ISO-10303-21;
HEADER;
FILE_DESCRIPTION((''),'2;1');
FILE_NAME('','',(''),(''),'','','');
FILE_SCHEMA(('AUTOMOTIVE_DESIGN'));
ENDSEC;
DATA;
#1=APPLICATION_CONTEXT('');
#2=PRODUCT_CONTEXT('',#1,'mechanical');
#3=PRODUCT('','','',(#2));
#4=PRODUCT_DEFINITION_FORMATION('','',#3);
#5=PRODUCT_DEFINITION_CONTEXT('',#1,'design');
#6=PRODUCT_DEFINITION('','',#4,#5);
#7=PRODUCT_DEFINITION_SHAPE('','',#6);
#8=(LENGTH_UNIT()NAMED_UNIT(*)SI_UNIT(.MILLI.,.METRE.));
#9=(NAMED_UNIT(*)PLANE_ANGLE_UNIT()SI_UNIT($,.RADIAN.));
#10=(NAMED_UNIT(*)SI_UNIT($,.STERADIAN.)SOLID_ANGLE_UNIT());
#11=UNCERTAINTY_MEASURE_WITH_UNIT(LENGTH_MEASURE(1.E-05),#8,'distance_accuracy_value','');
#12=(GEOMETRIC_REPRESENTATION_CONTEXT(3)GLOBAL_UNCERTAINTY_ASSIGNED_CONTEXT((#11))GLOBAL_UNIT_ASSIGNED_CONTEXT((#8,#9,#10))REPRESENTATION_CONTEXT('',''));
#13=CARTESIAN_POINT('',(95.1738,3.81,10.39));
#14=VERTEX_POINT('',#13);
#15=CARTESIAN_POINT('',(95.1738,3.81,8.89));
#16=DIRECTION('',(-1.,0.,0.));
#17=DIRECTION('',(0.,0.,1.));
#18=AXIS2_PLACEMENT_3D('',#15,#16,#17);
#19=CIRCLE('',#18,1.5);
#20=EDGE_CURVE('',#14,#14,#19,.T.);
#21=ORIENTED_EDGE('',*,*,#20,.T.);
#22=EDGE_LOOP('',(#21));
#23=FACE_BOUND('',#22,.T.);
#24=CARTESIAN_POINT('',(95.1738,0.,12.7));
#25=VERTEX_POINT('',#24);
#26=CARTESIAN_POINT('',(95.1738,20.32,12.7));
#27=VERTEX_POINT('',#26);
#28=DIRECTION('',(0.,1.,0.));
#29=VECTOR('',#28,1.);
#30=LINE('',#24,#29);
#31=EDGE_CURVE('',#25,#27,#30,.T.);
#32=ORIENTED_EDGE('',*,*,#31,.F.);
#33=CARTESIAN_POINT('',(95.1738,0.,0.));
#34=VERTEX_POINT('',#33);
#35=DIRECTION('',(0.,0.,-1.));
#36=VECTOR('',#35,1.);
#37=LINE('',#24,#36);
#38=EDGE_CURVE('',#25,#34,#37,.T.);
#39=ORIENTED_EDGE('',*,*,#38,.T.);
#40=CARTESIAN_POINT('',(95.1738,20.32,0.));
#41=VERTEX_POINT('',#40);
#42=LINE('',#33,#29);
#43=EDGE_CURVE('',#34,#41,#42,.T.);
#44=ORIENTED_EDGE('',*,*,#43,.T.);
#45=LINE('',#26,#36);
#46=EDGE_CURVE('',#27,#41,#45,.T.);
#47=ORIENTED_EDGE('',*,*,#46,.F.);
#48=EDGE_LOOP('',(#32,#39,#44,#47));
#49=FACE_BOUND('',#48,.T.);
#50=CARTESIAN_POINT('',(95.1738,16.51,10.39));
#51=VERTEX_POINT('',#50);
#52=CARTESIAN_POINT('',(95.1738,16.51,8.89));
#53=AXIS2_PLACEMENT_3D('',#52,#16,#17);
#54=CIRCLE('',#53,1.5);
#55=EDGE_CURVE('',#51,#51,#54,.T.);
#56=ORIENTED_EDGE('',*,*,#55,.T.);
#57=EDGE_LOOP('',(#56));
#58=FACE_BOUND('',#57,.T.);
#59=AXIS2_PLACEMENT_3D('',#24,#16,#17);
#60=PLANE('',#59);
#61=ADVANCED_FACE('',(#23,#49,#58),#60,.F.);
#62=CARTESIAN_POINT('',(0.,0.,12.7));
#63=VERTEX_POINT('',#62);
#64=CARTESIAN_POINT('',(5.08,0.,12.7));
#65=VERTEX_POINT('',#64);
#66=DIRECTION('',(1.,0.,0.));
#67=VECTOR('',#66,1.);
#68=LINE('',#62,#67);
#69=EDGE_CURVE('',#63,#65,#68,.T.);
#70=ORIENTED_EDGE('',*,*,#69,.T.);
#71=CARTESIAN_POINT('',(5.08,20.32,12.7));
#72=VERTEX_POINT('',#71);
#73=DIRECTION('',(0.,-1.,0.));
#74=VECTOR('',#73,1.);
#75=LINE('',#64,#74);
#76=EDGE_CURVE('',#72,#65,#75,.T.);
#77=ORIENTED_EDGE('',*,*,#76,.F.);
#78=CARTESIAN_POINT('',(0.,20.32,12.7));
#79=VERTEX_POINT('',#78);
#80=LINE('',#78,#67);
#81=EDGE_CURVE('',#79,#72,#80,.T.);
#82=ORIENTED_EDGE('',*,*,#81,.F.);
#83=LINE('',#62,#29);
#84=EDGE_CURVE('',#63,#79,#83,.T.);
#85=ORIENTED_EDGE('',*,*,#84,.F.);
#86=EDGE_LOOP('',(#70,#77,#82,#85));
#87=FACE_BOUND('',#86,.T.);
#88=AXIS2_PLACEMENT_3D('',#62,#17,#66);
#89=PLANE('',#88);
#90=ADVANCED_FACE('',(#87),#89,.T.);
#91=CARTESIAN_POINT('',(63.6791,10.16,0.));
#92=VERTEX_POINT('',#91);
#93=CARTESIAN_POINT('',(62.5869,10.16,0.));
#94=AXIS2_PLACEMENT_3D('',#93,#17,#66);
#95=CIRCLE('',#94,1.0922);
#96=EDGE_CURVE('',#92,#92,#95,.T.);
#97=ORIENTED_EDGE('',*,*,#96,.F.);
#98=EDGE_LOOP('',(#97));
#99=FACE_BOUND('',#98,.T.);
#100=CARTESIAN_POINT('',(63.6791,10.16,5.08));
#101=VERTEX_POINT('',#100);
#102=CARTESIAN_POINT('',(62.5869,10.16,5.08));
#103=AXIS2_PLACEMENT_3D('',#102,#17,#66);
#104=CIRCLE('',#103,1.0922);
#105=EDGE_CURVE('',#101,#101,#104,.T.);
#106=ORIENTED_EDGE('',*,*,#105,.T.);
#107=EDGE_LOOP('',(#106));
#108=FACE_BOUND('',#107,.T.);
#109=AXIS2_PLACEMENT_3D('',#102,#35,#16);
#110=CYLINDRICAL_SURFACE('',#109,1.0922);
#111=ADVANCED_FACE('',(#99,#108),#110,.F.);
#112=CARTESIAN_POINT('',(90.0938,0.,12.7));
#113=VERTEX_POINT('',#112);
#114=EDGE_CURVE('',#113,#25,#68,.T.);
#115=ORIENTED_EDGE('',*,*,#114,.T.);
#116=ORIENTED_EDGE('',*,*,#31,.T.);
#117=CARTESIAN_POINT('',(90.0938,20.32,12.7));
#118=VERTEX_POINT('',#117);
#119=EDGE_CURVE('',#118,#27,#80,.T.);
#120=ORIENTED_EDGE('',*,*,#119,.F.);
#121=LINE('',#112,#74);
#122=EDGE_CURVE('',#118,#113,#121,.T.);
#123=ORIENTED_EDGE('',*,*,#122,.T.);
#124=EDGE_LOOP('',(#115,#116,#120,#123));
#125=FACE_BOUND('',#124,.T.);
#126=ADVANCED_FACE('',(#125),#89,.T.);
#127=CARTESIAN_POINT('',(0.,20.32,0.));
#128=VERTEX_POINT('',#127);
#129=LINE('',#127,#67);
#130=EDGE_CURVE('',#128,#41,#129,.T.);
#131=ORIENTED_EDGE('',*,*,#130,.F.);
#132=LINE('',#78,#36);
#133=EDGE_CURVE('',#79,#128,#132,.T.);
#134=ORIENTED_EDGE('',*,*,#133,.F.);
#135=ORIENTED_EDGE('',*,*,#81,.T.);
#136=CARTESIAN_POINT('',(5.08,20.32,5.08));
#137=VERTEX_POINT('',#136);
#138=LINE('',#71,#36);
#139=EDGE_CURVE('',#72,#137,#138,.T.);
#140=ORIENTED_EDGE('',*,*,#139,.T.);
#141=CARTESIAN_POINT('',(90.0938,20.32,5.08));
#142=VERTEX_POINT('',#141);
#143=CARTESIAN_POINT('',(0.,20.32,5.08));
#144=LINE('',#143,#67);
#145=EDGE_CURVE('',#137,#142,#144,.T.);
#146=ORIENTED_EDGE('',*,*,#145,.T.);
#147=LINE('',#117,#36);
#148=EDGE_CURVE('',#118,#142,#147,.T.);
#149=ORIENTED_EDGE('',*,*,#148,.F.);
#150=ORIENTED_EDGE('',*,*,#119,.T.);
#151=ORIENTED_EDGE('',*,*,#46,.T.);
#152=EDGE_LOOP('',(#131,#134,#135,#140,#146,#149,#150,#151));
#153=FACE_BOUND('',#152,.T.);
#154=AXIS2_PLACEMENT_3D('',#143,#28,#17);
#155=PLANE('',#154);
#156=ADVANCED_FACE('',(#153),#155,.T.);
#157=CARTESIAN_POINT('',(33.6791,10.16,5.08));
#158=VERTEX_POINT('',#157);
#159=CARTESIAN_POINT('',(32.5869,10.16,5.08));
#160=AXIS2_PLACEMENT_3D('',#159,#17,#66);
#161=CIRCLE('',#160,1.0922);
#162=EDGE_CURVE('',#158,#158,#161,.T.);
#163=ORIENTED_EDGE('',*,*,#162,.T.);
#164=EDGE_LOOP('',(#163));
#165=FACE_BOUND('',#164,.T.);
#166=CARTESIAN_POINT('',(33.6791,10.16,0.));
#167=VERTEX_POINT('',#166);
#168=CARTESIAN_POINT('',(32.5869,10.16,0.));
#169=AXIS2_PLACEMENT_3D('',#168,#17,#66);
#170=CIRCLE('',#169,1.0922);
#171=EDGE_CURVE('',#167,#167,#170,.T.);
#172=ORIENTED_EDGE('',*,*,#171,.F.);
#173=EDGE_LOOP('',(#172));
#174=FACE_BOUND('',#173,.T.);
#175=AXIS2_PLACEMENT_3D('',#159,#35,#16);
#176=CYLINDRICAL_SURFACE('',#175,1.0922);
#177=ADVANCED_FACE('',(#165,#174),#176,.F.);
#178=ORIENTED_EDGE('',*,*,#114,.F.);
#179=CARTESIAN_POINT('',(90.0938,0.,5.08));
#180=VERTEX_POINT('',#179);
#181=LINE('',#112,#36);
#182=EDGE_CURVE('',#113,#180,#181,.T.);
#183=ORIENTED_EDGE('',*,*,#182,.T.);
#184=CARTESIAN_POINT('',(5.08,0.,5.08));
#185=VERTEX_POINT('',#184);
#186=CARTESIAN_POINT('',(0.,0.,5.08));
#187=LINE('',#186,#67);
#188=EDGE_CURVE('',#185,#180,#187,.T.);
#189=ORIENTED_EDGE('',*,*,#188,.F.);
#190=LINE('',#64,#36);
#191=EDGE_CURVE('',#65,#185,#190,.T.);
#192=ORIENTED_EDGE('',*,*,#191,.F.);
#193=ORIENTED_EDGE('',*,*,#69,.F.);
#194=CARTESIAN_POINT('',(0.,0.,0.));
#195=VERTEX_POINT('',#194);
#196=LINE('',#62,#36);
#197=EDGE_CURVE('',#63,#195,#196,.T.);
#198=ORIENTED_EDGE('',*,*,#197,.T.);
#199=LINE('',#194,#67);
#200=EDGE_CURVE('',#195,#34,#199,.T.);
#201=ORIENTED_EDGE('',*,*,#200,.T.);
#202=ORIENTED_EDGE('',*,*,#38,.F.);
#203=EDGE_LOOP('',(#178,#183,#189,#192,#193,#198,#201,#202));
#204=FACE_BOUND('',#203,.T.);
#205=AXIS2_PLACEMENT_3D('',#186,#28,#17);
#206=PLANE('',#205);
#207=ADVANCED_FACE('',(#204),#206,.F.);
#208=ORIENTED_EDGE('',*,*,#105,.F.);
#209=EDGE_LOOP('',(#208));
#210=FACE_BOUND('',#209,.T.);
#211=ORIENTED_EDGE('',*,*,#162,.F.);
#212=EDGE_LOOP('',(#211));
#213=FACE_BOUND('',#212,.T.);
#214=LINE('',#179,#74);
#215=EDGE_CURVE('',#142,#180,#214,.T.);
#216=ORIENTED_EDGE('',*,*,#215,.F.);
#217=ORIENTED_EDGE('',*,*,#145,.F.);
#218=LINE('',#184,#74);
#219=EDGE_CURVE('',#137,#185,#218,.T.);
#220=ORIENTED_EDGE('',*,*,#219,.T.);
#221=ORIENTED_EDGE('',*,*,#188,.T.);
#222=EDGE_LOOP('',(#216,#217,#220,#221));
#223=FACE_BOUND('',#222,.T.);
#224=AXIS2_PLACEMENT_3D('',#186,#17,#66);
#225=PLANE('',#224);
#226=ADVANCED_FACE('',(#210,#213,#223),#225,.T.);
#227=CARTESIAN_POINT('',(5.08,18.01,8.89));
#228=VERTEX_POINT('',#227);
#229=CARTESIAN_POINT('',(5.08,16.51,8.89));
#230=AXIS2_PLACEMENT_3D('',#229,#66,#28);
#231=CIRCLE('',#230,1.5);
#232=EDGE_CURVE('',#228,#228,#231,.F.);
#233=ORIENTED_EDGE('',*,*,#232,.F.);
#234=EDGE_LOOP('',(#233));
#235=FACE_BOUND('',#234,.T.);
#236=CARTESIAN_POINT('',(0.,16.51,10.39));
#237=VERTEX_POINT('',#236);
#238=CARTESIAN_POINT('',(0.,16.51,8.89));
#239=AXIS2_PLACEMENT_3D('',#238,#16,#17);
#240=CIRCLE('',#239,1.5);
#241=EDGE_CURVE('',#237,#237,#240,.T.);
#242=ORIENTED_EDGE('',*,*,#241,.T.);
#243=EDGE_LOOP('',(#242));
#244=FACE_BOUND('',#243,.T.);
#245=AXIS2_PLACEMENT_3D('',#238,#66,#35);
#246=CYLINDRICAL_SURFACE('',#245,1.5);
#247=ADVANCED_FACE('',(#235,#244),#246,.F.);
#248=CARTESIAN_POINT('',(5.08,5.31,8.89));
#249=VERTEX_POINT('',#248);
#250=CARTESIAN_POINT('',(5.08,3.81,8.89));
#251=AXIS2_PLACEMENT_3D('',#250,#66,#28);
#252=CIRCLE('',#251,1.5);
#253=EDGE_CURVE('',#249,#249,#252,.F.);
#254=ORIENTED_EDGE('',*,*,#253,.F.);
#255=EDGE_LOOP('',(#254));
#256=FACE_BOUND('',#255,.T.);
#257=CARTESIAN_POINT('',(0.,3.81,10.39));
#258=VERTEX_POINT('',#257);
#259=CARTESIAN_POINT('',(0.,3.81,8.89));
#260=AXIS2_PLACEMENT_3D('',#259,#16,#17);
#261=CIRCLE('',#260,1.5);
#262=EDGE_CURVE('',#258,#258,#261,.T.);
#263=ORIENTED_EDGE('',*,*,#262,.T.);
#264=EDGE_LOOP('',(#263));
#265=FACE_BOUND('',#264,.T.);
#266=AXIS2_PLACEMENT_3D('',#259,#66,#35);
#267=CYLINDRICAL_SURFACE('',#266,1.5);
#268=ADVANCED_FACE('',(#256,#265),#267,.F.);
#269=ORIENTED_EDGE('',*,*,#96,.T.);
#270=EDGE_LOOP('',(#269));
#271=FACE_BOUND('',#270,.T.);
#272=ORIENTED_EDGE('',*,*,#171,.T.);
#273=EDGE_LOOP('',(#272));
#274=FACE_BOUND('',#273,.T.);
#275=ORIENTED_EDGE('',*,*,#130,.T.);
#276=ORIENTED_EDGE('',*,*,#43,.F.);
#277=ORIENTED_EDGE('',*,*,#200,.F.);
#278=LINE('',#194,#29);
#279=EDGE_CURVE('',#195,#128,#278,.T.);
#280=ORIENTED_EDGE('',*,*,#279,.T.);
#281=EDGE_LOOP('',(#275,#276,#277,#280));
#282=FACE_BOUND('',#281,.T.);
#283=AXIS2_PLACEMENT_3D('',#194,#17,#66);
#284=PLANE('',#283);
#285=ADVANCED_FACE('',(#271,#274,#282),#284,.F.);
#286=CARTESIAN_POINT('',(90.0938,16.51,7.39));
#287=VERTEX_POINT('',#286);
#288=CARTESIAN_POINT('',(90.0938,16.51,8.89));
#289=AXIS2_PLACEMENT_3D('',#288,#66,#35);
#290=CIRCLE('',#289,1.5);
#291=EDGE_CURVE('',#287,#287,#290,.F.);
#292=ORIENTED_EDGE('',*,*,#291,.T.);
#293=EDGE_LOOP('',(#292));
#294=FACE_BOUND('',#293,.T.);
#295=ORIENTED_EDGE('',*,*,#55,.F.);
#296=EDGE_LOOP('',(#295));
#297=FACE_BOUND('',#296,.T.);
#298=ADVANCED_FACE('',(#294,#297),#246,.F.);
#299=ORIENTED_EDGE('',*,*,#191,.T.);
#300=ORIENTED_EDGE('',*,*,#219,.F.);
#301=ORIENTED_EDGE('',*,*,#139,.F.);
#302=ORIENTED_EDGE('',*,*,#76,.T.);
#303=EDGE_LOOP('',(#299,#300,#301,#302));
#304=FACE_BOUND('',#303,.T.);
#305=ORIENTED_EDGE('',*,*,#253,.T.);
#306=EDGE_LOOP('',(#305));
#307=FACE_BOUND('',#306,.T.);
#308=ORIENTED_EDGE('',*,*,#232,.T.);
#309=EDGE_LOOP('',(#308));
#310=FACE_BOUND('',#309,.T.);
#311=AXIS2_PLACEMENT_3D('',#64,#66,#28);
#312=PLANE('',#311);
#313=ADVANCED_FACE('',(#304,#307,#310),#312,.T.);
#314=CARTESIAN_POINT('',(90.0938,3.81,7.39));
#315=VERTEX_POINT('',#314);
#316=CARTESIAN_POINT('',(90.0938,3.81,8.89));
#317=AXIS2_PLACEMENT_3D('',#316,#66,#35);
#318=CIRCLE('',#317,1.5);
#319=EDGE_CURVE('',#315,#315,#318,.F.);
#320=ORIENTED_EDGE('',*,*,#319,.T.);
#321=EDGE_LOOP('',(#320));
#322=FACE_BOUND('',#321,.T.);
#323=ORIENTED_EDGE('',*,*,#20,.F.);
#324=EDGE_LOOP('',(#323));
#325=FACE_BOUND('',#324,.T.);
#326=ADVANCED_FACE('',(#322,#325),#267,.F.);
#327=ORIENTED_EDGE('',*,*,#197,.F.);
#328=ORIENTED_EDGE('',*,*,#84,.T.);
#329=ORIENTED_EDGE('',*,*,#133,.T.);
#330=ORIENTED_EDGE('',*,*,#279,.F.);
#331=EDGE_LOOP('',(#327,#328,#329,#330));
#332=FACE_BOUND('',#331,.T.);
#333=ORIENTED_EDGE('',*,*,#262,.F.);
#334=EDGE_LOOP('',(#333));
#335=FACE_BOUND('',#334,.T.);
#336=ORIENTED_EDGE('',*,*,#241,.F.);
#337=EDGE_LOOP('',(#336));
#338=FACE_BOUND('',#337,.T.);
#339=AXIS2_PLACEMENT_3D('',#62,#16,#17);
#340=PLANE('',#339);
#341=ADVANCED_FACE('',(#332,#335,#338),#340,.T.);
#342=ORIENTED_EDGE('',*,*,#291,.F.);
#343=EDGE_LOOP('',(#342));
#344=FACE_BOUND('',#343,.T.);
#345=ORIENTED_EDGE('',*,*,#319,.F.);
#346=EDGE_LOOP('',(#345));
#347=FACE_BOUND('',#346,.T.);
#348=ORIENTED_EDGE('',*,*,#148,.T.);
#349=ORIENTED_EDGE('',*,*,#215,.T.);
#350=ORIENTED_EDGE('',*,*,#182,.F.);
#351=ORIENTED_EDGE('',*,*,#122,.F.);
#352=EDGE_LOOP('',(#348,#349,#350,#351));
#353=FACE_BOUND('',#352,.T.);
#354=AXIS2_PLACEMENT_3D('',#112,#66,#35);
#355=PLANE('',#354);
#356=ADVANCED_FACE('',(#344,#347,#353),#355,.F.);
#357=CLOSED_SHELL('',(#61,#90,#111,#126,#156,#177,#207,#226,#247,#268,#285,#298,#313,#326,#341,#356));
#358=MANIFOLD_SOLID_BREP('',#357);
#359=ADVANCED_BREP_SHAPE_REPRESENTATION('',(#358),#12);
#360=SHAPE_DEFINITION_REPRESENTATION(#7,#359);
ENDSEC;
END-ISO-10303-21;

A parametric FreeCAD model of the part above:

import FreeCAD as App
import Part
import Sketcher

V = App.Vector
Q = App.Units.Quantity

doc = App.newDocument("Part")
params = doc.addObject("Spreadsheet::Sheet", "Params")
for row, (alias, value) in enumerate([
    ("sketch1_diameter", "0.086 in"),
    ("sketch1_height", "0.8 in"),
    ("sketch1_width", "3.347 in"),
    ("pad1_length", "0.2 in"),
    ("sketch2_width", "0.2 in"),
    ("sketch2_height", "0.8 in"),
    ("pad2_length", "0.5 in"),
], start=1):
    params.set(f"A{row}", alias)
    params.set(f"B{row}", "=" + value)
    params.setAlias(f"B{row}", alias)

body = doc.addObject("PartDesign::Body", "Body")

# Sketch on XY plane
sketch1 = doc.addObject("Sketcher::SketchObject", "Sketch")
body.addObject(sketch1)
sketch1.AttachmentSupport = (doc.XY_Plane, [""])
sketch1.MapMode = "FlatFace"
sketch1.addGeometry(Part.LineSegment(V(90.1, 20.3, 0), V(5.1, 20.3, 0)), False)
sketch1.addGeometry(Part.LineSegment(V(5.1, 20.3, 0), V(5.1, 0, 0)), False)
sketch1.addGeometry(Part.LineSegment(V(5.1, 0, 0), V(90.1, 0, 0)), False)
sketch1.addGeometry(Part.LineSegment(V(90.1, 0, 0), V(90.1, 20.3, 0)), False)
sketch1.addGeometry(Part.Circle(V(32.6, 10.2, 0), V(0, 0, 1), 1.1), False)
sketch1.addGeometry(Part.Circle(V(62.6, 10.2, 0), V(0, 0, 1), 1.1), False)
sketch1.addConstraint(Sketcher.Constraint("Coincident", 0, 2, 1, 1))
sketch1.addConstraint(Sketcher.Constraint("Coincident", 1, 2, 2, 1))
sketch1.addConstraint(Sketcher.Constraint("Coincident", 2, 2, 3, 1))
sketch1.addConstraint(Sketcher.Constraint("Coincident", 3, 2, 0, 1))
sketch1.addConstraint(Sketcher.Constraint("Horizontal", 0))
sketch1.addConstraint(Sketcher.Constraint("Vertical", 1))
sketch1.addConstraint(Sketcher.Constraint("Horizontal", 2))
sketch1.addConstraint(Sketcher.Constraint("Vertical", 3))
sketch1.addConstraint(Sketcher.Constraint("Equal", 4, 5))
sketch1.addConstraint(Sketcher.Constraint("PointOnObject", 1, 2, -1))
sketch1.addConstraint(Sketcher.Constraint("Horizontal", 4, 3, 5, 3))
sketch1.addConstraint(Sketcher.Constraint("Diameter", 4, Q("0.086 in")))
sketch1.addConstraint(Sketcher.Constraint("DistanceY", 1, 2, 1, 1, Q("0.8 in")))
sketch1.addConstraint(Sketcher.Constraint("DistanceY", -1, 1, 4, 3, Q("0.4 in")))
sketch1.addConstraint(Sketcher.Constraint("DistanceX", -1, 1, 0, 2, Q("0.2 in")))
sketch1.addConstraint(Sketcher.Constraint("DistanceX", 0, 2, 0, 1, Q("3.347 in")))
sketch1.addConstraint(Sketcher.Constraint("DistanceX", -1, 1, 4, 3, 32.5869))
sketch1.addConstraint(Sketcher.Constraint("DistanceX", -1, 1, 5, 3, 62.5869))
sketch1.setExpression("Constraints[11]", "Params.sketch1_diameter")
sketch1.setExpression("Constraints[12]", "Params.sketch1_height")
sketch1.setExpression("Constraints[15]", "Params.sketch1_width")
pad1 = doc.addObject("PartDesign::Pad", "Pad")
body.addObject(pad1)
pad1.Profile = sketch1
pad1.setExpression("Length", "Params.pad1_length")

# Sketch on XY plane
sketch2 = doc.addObject("Sketcher::SketchObject", "Sketch001")
body.addObject(sketch2)
sketch2.AttachmentSupport = (doc.XY_Plane, [""])
sketch2.MapMode = "FlatFace"
sketch2.addGeometry(Part.LineSegment(V(90, 20, 0), V(90, 0, 0)), False)
sketch2.addGeometry(Part.LineSegment(V(90, 0, 0), V(95, 0, 0)), False)
sketch2.addGeometry(Part.LineSegment(V(95, 0, 0), V(95, 20, 0)), False)
sketch2.addGeometry(Part.LineSegment(V(95, 20, 0), V(90, 20, 0)), False)
sketch2.addGeometry(Part.LineSegment(V(0, 20, 0), V(0, 0, 0)), False)
sketch2.addGeometry(Part.LineSegment(V(0, 0, 0), V(5, 0, 0)), False)
sketch2.addGeometry(Part.LineSegment(V(5, 0, 0), V(5, 20, 0)), False)
sketch2.addGeometry(Part.LineSegment(V(5, 20, 0), V(0, 20, 0)), False)
sketch2.addConstraint(Sketcher.Constraint("Coincident", 0, 2, 1, 1))
sketch2.addConstraint(Sketcher.Constraint("Coincident", 1, 2, 2, 1))
sketch2.addConstraint(Sketcher.Constraint("Coincident", 2, 2, 3, 1))
sketch2.addConstraint(Sketcher.Constraint("Coincident", 3, 2, 0, 1))
sketch2.addConstraint(Sketcher.Constraint("Coincident", 4, 2, 5, 1))
sketch2.addConstraint(Sketcher.Constraint("Coincident", 5, 2, 6, 1))
sketch2.addConstraint(Sketcher.Constraint("Coincident", 6, 2, 7, 1))
sketch2.addConstraint(Sketcher.Constraint("Coincident", 7, 2, 4, 1))
sketch2.addConstraint(Sketcher.Constraint("Vertical", 0))
sketch2.addConstraint(Sketcher.Constraint("Horizontal", 1))
sketch2.addConstraint(Sketcher.Constraint("Vertical", 2))
sketch2.addConstraint(Sketcher.Constraint("Horizontal", 3))
sketch2.addConstraint(Sketcher.Constraint("Vertical", 4))
sketch2.addConstraint(Sketcher.Constraint("Horizontal", 5))
sketch2.addConstraint(Sketcher.Constraint("Vertical", 6))
sketch2.addConstraint(Sketcher.Constraint("Horizontal", 7))
sketch2.addConstraint(Sketcher.Constraint("Coincident", 4, 2, -1, 1))
sketch2.addConstraint(Sketcher.Constraint("PointOnObject", 0, 2, -1))
sketch2.addConstraint(Sketcher.Constraint("Horizontal", 3, 2, 6, 2))
sketch2.addConstraint(Sketcher.Constraint("Equal", 3, 5))
sketch2.addConstraint(Sketcher.Constraint("DistanceX", 1, 1, 1, 2, Q("0.2 in")))
sketch2.addConstraint(Sketcher.Constraint("DistanceY", 0, 2, 0, 1, Q("0.8 in")))
sketch2.addConstraint(Sketcher.Constraint("DistanceX", -1, 1, 0, 2, Q("3.547 in")))
sketch2.setExpression("Constraints[20]", "Params.sketch2_width")
sketch2.setExpression("Constraints[21]", "Params.sketch2_height")
pad2 = doc.addObject("PartDesign::Pad", "Pad001")
body.addObject(pad2)
pad2.Profile = sketch2
pad2.setExpression("Length", "Params.pad2_length")

# Sketch on YZ plane
sketch3 = doc.addObject("Sketcher::SketchObject", "Sketch002")
body.addObject(sketch3)
sketch3.AttachmentSupport = (doc.YZ_Plane, [""])
sketch3.MapMode = "FlatFace"
sketch3.AttachmentOffset = App.Placement(V(0, 0, 3.547 * 25.4), App.Rotation())
sketch3.addGeometry(Part.Circle(V(16.5, 8.9, 0), V(0, 0, 1), 1.5), False)
sketch3.addGeometry(Part.Circle(V(3.8, 8.9, 0), V(0, 0, 1), 1.5), False)
sketch3.addConstraint(Sketcher.Constraint("Equal", 0, 1))
sketch3.addConstraint(Sketcher.Constraint("Horizontal", 0, 3, 1, 3))
sketch3.addConstraint(Sketcher.Constraint("DistanceX", 1, 3, 0, 3, Q("0.5 in")))
sketch3.addConstraint(Sketcher.Constraint("Diameter", 0, 3.0))
sketch3.addConstraint(Sketcher.Constraint("DistanceX", -1, 1, 0, 3, Q("0.65 in")))
sketch3.addConstraint(Sketcher.Constraint("DistanceY", -1, 1, 0, 3, Q("0.35 in")))
pocket1 = doc.addObject("PartDesign::Pocket", "Pocket")
body.addObject(pocket1)
pocket1.Profile = sketch3
pocket1.Type = "ThroughAll"
pocket1.Midplane = True

doc.recompute()
